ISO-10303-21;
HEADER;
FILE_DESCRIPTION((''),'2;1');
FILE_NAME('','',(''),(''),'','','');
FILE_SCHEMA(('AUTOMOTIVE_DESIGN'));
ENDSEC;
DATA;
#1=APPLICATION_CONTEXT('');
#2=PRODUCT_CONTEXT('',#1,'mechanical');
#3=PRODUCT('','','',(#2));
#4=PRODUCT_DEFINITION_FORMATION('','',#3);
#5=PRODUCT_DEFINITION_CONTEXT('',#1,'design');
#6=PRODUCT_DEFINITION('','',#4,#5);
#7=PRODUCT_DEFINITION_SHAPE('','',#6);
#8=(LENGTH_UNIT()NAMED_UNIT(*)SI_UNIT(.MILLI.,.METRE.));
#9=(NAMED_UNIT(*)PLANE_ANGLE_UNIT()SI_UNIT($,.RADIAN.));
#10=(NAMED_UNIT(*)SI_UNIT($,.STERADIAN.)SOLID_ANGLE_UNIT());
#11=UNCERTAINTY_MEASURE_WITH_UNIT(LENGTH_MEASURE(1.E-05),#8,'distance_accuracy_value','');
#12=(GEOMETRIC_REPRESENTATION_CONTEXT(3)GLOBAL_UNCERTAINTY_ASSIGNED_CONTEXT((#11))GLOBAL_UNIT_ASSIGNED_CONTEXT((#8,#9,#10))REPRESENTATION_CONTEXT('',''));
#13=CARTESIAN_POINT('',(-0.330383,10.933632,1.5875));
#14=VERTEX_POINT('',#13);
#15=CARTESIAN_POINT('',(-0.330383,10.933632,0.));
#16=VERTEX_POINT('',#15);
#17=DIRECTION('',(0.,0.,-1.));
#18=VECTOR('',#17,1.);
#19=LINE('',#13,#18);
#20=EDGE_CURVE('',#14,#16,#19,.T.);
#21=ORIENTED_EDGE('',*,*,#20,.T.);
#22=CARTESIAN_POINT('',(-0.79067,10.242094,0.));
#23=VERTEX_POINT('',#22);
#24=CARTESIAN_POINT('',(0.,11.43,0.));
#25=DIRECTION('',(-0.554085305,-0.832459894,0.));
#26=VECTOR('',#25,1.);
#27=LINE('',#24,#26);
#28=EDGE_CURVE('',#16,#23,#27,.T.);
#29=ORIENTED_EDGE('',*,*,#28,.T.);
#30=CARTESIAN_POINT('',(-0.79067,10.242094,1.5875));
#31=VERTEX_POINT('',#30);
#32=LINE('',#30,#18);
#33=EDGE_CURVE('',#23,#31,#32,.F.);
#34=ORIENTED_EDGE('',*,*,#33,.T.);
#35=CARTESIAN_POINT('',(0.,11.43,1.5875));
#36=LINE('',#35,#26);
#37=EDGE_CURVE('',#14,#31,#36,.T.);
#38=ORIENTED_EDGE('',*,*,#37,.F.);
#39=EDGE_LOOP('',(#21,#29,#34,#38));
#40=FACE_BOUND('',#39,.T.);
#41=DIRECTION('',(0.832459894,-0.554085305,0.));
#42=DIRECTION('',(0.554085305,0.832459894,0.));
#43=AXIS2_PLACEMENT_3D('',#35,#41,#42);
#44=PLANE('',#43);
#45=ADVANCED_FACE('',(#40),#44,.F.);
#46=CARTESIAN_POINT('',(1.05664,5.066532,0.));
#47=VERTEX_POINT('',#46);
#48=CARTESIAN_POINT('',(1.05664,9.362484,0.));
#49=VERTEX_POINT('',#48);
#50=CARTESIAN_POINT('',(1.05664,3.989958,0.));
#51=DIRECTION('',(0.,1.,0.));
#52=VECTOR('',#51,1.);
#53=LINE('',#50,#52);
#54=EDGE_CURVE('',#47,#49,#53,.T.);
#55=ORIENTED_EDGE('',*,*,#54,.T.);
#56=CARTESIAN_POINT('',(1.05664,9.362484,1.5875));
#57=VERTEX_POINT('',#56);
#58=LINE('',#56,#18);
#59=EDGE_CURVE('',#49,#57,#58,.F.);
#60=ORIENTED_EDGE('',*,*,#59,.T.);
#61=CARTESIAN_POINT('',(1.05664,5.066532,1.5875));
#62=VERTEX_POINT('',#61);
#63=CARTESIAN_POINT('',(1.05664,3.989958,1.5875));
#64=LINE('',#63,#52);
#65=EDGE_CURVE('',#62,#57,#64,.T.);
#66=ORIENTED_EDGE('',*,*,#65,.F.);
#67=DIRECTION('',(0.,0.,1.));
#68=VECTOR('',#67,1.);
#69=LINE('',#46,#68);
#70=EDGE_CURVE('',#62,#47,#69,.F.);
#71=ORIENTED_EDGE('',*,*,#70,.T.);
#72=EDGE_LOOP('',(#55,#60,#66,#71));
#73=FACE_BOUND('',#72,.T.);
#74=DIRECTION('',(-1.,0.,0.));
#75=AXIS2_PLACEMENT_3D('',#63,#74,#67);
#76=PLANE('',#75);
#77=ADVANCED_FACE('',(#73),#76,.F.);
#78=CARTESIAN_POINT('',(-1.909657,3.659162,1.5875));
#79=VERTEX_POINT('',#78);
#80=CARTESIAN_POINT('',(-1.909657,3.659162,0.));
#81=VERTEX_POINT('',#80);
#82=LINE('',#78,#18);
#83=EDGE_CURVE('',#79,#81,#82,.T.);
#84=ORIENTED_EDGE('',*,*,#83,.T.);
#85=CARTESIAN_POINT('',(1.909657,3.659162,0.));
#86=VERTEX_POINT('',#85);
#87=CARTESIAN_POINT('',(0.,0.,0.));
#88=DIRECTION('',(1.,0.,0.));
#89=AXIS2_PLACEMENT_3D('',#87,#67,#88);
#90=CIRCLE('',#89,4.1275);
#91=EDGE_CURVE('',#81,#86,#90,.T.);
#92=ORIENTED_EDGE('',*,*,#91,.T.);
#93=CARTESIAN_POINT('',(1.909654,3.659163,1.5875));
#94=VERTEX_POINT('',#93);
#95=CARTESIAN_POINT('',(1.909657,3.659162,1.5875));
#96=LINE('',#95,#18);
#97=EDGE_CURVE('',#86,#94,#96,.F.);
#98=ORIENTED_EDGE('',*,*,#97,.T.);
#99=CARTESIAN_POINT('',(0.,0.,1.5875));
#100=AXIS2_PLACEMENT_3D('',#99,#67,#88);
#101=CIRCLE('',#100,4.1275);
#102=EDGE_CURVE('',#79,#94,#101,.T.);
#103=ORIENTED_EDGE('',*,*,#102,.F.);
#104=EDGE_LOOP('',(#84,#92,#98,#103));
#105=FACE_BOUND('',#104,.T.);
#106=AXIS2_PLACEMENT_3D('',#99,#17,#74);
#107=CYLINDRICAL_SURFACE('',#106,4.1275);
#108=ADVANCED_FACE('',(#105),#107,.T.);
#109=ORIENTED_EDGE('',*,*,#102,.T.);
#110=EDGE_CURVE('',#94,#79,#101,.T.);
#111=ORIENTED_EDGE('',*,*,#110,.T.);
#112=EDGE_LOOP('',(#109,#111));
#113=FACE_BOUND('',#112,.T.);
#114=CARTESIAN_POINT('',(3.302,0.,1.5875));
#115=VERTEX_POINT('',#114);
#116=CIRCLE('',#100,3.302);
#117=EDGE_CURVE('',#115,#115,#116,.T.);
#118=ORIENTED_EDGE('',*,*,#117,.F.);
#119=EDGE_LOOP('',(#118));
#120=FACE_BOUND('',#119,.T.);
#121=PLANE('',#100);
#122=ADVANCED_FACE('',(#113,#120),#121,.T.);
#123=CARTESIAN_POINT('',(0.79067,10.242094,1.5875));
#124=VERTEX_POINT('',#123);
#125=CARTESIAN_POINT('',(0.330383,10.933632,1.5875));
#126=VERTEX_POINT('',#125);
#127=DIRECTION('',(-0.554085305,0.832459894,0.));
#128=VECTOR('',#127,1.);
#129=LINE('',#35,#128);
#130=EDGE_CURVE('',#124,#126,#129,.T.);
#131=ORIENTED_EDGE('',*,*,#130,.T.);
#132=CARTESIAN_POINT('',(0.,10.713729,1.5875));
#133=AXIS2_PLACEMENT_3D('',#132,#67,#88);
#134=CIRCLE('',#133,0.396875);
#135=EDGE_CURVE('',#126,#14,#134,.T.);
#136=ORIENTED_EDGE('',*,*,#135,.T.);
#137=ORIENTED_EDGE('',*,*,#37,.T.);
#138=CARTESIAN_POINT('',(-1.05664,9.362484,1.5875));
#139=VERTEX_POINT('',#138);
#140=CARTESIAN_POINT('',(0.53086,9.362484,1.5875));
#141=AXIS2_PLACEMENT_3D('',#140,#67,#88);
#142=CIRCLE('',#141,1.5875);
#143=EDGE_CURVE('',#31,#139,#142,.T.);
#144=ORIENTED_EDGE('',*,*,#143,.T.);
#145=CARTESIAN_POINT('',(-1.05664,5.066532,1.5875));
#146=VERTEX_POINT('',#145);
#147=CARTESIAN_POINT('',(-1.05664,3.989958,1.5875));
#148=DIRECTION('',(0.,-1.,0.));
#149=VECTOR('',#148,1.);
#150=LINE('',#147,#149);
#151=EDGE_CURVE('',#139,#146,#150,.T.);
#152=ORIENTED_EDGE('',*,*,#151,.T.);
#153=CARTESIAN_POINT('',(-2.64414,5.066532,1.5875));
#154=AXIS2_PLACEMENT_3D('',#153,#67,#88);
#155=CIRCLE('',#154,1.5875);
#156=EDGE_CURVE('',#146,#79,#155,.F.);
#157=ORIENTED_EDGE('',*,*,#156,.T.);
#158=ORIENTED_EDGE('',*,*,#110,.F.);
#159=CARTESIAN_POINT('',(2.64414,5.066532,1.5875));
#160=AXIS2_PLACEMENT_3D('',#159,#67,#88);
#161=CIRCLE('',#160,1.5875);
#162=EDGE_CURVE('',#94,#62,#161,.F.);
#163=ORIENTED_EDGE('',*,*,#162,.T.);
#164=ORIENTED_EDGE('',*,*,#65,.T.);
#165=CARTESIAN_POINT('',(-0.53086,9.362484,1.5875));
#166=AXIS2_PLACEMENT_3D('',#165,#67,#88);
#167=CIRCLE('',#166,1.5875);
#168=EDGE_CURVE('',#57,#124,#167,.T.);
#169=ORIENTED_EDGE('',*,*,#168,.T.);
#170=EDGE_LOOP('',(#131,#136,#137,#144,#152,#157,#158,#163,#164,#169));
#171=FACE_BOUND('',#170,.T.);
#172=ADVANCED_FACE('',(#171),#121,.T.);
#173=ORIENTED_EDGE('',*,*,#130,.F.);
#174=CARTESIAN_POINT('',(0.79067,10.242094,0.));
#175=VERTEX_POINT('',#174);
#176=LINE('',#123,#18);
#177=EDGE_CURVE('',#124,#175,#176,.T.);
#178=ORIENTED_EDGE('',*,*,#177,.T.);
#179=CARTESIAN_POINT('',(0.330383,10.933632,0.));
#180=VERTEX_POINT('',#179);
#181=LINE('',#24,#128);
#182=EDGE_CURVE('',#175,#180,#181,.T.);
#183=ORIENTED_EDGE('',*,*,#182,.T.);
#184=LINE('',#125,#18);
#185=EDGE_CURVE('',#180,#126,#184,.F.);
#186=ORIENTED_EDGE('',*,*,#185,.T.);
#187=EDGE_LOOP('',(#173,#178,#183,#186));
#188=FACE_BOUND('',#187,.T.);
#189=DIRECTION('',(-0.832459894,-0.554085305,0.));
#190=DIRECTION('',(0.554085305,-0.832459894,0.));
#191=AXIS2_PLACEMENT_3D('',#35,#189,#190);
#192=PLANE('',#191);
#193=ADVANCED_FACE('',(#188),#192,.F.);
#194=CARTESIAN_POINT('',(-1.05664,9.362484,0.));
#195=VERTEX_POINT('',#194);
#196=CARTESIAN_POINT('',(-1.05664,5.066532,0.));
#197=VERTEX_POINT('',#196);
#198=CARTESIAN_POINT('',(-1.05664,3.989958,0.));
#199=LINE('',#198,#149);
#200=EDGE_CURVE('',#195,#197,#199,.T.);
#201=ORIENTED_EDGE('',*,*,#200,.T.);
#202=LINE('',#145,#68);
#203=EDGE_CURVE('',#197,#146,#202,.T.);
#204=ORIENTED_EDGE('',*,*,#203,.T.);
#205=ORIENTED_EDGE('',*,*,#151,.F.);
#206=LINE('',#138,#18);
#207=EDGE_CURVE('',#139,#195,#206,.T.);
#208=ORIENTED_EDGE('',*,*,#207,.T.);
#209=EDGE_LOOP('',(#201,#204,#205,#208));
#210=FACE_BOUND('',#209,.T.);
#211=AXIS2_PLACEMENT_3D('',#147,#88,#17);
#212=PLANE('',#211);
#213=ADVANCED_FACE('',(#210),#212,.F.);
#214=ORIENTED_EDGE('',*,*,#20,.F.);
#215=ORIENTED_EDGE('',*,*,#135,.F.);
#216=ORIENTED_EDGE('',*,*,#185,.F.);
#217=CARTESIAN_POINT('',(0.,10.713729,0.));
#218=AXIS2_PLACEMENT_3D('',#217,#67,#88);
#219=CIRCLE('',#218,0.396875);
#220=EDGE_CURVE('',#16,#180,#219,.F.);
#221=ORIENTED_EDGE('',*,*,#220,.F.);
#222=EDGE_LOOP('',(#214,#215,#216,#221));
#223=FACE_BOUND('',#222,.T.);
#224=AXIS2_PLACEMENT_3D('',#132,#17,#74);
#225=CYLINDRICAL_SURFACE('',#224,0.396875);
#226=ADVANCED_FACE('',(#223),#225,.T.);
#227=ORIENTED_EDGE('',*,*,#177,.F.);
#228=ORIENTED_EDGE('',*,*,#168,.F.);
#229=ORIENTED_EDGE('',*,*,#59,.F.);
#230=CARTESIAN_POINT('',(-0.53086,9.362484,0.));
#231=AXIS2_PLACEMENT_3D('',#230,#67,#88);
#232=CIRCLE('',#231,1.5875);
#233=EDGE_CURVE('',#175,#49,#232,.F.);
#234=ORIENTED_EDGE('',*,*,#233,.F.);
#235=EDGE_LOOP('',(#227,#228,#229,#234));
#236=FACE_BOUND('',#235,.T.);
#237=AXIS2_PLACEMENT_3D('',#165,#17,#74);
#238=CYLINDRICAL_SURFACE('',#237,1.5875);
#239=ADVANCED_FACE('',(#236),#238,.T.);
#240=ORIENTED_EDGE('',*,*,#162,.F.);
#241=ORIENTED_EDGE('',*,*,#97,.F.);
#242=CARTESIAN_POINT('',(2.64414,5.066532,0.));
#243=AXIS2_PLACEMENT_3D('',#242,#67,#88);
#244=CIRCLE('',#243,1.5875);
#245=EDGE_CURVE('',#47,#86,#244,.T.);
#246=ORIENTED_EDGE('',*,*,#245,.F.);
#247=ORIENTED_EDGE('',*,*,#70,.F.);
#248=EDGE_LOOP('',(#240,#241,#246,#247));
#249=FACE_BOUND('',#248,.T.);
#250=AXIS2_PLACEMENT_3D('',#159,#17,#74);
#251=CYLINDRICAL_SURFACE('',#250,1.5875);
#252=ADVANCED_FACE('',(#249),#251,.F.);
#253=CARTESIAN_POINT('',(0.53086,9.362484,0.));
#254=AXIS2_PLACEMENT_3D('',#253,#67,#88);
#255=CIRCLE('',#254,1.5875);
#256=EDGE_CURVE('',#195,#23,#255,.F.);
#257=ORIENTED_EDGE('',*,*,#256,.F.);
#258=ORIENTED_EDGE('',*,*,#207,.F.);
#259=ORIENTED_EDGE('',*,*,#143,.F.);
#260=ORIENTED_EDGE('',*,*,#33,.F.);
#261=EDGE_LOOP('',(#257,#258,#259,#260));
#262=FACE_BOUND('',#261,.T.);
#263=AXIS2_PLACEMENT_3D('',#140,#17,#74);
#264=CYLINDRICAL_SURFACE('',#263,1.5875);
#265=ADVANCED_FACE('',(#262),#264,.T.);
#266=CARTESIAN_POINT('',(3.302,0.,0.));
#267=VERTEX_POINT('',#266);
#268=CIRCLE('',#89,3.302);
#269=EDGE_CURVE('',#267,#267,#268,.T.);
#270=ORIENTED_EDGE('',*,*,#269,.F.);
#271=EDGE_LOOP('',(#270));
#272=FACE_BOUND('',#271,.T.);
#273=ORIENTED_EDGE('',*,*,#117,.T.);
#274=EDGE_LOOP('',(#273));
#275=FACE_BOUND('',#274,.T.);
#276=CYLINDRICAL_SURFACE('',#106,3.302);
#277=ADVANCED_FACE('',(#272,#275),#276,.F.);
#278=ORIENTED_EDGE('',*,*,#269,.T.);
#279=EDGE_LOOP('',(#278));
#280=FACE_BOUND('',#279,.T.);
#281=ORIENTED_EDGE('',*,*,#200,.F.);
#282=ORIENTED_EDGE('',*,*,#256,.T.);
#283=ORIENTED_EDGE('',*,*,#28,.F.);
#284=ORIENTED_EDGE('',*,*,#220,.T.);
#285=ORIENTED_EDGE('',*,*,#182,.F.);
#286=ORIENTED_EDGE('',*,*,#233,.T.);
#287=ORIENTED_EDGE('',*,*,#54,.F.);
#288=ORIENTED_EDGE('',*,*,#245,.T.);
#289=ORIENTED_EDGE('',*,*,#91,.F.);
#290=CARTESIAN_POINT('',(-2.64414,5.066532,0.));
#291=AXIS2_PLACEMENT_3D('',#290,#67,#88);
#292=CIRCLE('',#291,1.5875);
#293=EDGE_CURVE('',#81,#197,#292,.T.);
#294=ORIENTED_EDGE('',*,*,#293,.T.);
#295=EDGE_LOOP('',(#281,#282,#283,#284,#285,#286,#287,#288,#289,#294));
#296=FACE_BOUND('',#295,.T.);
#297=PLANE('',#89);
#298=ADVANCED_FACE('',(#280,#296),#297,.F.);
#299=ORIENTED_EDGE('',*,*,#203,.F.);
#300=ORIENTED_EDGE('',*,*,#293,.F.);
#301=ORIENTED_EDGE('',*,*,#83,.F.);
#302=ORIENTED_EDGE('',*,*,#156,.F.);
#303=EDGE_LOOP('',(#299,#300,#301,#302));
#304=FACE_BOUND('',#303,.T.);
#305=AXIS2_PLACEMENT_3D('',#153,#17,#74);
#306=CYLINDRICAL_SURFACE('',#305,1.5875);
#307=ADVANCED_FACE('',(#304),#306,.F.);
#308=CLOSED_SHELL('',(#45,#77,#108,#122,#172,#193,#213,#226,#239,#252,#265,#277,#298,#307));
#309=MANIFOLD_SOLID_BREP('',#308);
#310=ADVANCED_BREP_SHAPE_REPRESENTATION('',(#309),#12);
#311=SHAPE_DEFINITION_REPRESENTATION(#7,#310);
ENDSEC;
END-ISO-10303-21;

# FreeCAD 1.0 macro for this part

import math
import FreeCAD as App
import Part
import Sketcher
from FreeCAD import Vector
Q = App.Units.Quantity


def edges_at(feature, points):
    """Names of the edges that pass closest to the given points."""
    edges = feature.Shape.Edges
    near = lambda p: min(range(len(edges)), key=lambda i: edges[i].distToShape(Part.Vertex(*p))[0])
    return sorted({f"Edge{near(p) + 1}" for p in points})

doc = App.newDocument("Part")
body = doc.addObject("PartDesign::Body", "Body")

# Sketch on XY plane
sketch1 = body.newObject("Sketcher::SketchObject", "Sketch")
sketch1.AttachmentSupport = (doc.getObject("XY_Plane"), [""])
sketch1.MapMode = "FlatFace"
sketch1.addGeometry(Part.LineSegment(Vector(1.1, 4, 0), Vector(1.1, 9.8, 0)), False)
sketch1.addGeometry(Part.LineSegment(Vector(1.1, 9.8, 0), Vector(0, 11.4, 0)), False)
sketch1.addGeometry(Part.LineSegment(Vector(0, 11.4, 0), Vector(-1.1, 9.8, 0)), False)
sketch1.addGeometry(Part.LineSegment(Vector(-1.1, 9.8, 0), Vector(-1.1, 4, 0)), False)
sketch1.addGeometry(Part.ArcOfCircle(Part.Circle(Vector(0, 0, 0), Vector(0, 0, 1), 4.1), math.radians(105), math.radians(435)), False)
sketch1.addGeometry(Part.Circle(Vector(0, 0, 0), Vector(0, 0, 1), 3.3), False)
sketch1.addConstraint(Sketcher.Constraint("Coincident", 0, 2, 1, 1))
sketch1.addConstraint(Sketcher.Constraint("Coincident", 1, 2, 2, 1))
sketch1.addConstraint(Sketcher.Constraint("Coincident", 2, 2, 3, 1))
sketch1.addConstraint(Sketcher.Constraint("Coincident", 3, 2, 4, 1))
sketch1.addConstraint(Sketcher.Constraint("Coincident", 4, 2, 0, 1))
sketch1.addConstraint(Sketcher.Constraint("Vertical", 0))
sketch1.addConstraint(Sketcher.Constraint("Vertical", 3))
sketch1.addConstraint(Sketcher.Constraint("Coincident", 4, 3, -1, 1))
sketch1.addConstraint(Sketcher.Constraint("Coincident", 5, 3, -1, 1))
sketch1.addConstraint(Sketcher.Constraint("Symmetric", 0, 2, 2, 2, -2))
sketch1.addConstraint(Sketcher.Constraint("PointOnObject", 1, 2, -2))
sketch1.addConstraint(Sketcher.Constraint("Diameter", 5, Q("0.26 in")))
sketch1.addConstraint(Sketcher.Constraint("Radius", 4, Q("0.1625 in")))
sketch1.addConstraint(Sketcher.Constraint("DistanceY", -1, 1, 1, 2, Q("0.45 in")))
sketch1.addConstraint(Sketcher.Constraint("DistanceY", 0, 2, 1, 2, Q("0.0625 in")))
sketch1.addConstraint(Sketcher.Constraint("DistanceX", -1, 1, 0, 2, Q("0.0416 in")))
pad1 = body.newObject("PartDesign::Pad", "Pad")
pad1.Profile = sketch1
pad1.Length = Q("0.0625 in")
doc.recompute()

fillet = body.newObject("PartDesign::Fillet", "Fillet")
fillet.Base = (pad1, edges_at(pad1, [(1.057, 9.842, 0.794), (-1.057, 9.842, 0.794)]))
fillet.Radius = Q("0.0625 in")
doc.recompute()

fillet2 = body.newObject("PartDesign::Fillet", "Fillet001")
fillet2.Base = (fillet, edges_at(fillet, [(0, 11.43, 0.794)]))
fillet2.Radius = Q("0.015625 in")
doc.recompute()

fillet3 = body.newObject("PartDesign::Fillet", "Fillet002")
fillet3.Base = (fillet2, edges_at(fillet2, [(1.057, 3.99, 0.794), (-1.057, 3.99, 0.794)]))
fillet3.Radius = Q("0.0625 in")

doc.recompute()
